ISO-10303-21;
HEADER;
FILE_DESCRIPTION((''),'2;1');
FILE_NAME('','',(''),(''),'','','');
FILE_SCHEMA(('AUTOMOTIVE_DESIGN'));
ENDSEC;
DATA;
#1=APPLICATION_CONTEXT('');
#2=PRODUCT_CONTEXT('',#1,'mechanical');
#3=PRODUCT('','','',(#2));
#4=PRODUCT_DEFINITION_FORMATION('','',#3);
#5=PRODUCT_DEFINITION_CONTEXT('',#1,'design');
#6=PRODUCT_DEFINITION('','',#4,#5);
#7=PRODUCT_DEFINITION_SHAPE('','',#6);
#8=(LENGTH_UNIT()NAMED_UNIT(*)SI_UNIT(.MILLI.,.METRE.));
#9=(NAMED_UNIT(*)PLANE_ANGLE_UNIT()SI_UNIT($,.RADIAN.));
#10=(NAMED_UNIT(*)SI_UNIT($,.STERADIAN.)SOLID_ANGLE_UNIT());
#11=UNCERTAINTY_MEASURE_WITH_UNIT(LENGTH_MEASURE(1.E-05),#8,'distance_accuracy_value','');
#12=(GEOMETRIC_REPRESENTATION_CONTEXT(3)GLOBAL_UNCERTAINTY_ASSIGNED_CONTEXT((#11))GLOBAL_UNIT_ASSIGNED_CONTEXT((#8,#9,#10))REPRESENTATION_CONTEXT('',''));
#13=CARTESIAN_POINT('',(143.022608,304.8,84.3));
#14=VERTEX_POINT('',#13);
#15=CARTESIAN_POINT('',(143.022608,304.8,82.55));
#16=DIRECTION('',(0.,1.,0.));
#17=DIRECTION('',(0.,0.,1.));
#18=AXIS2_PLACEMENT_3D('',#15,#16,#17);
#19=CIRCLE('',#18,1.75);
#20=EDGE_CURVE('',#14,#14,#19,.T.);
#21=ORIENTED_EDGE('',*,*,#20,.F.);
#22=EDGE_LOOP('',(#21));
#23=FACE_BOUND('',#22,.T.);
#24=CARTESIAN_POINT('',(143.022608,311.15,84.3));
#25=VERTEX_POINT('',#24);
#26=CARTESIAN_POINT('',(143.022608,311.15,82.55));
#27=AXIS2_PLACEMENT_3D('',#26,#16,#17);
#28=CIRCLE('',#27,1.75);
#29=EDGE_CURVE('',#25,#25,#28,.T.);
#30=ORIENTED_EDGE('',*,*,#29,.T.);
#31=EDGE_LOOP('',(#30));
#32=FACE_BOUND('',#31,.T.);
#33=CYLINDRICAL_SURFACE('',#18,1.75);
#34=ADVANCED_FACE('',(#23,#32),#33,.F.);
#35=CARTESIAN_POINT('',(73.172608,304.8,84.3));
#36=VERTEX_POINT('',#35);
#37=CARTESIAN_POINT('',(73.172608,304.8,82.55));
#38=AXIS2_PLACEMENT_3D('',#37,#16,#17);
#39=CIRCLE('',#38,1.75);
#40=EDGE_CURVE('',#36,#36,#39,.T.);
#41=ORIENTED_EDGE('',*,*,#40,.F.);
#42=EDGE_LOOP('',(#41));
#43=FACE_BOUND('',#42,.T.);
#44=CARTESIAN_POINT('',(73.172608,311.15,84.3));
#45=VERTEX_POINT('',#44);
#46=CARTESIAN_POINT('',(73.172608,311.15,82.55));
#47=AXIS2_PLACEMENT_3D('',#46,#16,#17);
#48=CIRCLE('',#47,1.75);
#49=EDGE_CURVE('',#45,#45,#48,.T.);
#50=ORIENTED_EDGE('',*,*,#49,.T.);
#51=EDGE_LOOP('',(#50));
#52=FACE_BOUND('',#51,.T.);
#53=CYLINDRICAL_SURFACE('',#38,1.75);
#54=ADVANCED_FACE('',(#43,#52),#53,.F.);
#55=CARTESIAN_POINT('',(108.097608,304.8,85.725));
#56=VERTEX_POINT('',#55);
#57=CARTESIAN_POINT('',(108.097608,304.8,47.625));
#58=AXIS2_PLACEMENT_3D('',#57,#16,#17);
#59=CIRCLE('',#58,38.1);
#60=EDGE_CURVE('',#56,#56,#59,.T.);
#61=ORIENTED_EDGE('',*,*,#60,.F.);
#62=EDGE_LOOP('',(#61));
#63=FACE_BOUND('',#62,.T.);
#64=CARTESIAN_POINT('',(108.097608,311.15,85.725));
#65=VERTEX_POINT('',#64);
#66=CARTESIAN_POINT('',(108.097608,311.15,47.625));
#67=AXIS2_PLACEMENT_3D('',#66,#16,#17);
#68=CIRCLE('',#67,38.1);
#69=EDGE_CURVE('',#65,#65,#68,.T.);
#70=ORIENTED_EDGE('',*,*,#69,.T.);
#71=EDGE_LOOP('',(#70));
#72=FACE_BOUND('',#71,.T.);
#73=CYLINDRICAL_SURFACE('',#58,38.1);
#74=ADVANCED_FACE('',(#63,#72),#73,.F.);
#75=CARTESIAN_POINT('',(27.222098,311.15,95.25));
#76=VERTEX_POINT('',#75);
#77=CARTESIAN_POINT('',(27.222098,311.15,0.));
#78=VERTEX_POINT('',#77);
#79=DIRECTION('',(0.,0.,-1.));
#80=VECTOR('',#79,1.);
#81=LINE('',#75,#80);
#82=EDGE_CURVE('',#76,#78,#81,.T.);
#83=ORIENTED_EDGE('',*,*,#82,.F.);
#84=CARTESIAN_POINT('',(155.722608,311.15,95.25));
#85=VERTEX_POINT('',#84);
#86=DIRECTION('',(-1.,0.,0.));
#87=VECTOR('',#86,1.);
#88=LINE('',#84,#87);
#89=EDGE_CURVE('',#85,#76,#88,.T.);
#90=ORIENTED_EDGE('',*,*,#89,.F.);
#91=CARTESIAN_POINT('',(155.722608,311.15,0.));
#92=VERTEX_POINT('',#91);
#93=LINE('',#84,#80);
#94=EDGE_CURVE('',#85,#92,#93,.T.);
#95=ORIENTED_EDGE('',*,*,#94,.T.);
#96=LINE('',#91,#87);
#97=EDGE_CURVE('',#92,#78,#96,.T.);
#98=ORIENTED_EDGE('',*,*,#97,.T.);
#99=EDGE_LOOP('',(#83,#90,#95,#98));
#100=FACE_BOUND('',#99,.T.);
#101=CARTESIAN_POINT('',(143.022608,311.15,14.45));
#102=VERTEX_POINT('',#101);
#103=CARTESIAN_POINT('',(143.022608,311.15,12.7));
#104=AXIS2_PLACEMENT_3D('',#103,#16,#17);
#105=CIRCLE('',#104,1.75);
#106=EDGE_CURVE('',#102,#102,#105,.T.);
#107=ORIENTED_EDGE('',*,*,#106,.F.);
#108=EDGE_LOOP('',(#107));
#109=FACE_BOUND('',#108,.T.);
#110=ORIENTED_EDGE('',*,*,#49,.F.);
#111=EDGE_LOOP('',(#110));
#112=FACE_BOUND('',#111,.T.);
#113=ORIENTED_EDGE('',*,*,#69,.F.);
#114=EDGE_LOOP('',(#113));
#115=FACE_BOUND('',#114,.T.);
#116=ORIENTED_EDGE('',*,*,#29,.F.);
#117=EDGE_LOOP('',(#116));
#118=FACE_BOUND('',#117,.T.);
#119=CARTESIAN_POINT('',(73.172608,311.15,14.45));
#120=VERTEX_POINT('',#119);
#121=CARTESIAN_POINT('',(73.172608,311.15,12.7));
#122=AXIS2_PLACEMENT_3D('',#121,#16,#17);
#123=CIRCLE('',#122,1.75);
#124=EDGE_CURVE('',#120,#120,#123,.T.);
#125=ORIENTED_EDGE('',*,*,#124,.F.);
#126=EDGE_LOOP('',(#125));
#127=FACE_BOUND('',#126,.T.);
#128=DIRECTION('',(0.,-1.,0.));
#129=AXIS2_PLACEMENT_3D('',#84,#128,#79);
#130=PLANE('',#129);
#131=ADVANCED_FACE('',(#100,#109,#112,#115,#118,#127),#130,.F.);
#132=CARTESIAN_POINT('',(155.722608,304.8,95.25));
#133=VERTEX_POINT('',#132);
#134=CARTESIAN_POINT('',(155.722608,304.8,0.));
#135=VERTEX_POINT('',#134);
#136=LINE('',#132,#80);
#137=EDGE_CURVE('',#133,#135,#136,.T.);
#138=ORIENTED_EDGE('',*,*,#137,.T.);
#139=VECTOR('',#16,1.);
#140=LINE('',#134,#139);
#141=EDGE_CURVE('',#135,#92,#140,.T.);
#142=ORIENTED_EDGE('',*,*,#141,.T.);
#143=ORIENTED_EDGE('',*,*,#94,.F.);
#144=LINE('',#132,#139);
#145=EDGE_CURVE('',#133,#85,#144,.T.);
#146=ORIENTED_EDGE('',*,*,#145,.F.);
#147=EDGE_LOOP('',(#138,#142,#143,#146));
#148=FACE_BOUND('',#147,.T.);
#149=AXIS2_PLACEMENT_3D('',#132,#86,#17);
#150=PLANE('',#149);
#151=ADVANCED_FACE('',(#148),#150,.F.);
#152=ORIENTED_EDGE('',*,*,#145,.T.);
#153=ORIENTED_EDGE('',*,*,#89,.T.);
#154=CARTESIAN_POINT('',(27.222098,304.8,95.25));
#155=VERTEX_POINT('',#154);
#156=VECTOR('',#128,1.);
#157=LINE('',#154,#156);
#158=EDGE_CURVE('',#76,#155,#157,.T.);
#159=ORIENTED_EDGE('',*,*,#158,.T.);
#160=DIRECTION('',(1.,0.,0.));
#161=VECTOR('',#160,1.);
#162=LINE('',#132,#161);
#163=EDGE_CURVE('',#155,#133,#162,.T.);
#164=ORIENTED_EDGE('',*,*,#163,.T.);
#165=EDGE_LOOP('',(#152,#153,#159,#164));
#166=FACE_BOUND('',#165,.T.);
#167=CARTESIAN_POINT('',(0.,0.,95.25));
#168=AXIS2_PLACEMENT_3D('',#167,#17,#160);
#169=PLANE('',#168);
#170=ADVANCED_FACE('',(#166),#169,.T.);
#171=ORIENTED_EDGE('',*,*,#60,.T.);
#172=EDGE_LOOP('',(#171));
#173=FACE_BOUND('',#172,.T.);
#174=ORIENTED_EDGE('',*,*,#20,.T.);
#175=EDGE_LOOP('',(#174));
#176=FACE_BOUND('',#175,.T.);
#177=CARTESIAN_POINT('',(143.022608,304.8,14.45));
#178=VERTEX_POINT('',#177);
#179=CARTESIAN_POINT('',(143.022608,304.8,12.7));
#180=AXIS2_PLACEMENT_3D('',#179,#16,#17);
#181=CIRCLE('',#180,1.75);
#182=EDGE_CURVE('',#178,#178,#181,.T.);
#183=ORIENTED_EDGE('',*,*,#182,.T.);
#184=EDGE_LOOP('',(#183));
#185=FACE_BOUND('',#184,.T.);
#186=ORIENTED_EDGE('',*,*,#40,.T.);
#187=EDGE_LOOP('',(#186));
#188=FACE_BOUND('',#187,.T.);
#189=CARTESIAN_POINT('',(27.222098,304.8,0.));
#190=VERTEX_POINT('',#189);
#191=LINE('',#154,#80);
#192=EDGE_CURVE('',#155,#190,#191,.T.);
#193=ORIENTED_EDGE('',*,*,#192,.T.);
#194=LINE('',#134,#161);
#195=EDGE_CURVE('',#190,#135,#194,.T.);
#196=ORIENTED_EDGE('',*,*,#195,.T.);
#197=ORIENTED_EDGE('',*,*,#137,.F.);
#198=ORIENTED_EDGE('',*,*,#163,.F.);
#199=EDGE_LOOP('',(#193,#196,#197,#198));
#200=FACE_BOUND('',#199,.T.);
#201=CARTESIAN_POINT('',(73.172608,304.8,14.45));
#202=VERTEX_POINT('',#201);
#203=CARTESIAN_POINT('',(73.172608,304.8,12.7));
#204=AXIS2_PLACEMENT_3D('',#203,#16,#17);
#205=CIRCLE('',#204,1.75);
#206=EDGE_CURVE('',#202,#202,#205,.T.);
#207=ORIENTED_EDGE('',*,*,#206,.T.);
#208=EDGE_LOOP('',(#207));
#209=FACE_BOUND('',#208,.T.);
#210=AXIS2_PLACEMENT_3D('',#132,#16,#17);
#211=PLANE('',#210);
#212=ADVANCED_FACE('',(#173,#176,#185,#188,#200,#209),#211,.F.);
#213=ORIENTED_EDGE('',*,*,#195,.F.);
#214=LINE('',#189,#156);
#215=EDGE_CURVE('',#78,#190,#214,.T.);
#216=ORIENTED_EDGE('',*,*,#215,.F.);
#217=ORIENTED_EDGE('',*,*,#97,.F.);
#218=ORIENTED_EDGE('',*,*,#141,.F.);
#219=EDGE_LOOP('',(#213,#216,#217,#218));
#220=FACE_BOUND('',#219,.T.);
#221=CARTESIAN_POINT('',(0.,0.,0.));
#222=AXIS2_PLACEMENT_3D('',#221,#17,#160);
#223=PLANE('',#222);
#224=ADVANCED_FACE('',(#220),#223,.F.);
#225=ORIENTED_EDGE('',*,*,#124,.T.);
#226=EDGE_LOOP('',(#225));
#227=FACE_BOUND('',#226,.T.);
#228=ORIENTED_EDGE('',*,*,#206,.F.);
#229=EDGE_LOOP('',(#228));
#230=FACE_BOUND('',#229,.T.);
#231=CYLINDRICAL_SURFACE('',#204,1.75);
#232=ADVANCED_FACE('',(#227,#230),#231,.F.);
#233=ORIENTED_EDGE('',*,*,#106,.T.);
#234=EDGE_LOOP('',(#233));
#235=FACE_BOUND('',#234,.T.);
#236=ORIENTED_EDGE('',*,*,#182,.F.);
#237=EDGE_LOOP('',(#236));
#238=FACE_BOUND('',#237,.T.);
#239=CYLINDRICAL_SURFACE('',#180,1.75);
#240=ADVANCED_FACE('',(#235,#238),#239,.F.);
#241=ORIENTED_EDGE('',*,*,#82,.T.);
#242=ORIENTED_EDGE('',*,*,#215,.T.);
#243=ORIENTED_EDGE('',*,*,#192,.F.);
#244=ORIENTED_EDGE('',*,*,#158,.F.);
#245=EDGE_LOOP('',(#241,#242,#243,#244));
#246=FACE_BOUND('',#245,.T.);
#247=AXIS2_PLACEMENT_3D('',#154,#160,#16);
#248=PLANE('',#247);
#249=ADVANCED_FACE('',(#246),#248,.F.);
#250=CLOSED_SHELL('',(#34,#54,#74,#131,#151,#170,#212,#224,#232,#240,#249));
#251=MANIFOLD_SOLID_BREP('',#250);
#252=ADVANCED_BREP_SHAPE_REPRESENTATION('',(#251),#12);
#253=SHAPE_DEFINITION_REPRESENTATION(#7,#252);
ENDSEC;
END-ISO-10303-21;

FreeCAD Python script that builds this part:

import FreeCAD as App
import Part
import Sketcher
from FreeCAD import Vector
Q = App.Units.Quantity


def add_polygon(sketch, points):
    """Adds a closed chain of lines whose ends are joined by coincident constraints."""
    first, n = sketch.GeometryCount, len(points)
    for a, b in zip(points, points[1:] + points[:1]):
        sketch.addGeometry(Part.LineSegment(App.Vector(*a, 0), App.Vector(*b, 0)), False)
    for i in range(n):
        sketch.addConstraint(Sketcher.Constraint("Coincident", first + i, 2, first + (i + 1) % n, 1))

doc = App.newDocument("Part")
body = doc.addObject("PartDesign::Body", "Body")

sketch1 = body.newObject("Sketcher::SketchObject", "Sketch")
sketch1.AttachmentSupport = (doc.getObject("XY_Plane"), [""])
sketch1.MapMode = "FlatFace"
add_polygon(sketch1, [(27, 311), (27, 305), (156, 305), (156, 311)])
sketch1.addConstraint(Sketcher.Constraint("Vertical", 0))
sketch1.addConstraint(Sketcher.Constraint("Horizontal", 1))
sketch1.addConstraint(Sketcher.Constraint("Vertical", 2))
sketch1.addConstraint(Sketcher.Constraint("Horizontal", 3))
sketch1.addConstraint(Sketcher.Constraint("DistanceY", -1, 1, 0, 2, Q("12 in")))
sketch1.addConstraint(Sketcher.Constraint("DistanceY", 0, 2, 0, 1, Q("0.25 in")))
sketch1.addConstraint(Sketcher.Constraint("DistanceX", 1, 1, 1, 2, Q("128.50051 mm")))
sketch1.addConstraint(Sketcher.Constraint("DistanceX", -1, 1, 0, 2, Q("27.222098 mm")))
pad1 = body.newObject("PartDesign::Pad", "Pad")
pad1.Profile = sketch1
pad1.Length = Q("3.75 in")

sketch2 = body.newObject("Sketcher::SketchObject", "Sketch001")
sketch2.AttachmentSupport = (doc.getObject("XZ_Plane"), [""])
sketch2.MapMode = "FlatFace"
sketch2.AttachmentOffset = App.Placement(Vector(0, 0, -12.25 * 25.4), App.Rotation())
sketch2.addGeometry(Part.Circle(Vector(108.1, 47.6, 0), Vector(0, 0, 1), 38.1), False)
sketch2.addGeometry(Part.Circle(Vector(73.2, 12.7, 0), Vector(0, 0, 1), 1.8), False)
sketch2.addGeometry(Part.Circle(Vector(73.2, 82.5, 0), Vector(0, 0, 1), 1.8), False)
sketch2.addGeometry(Part.Circle(Vector(143, 82.5, 0), Vector(0, 0, 1), 1.8), False)
sketch2.addGeometry(Part.Circle(Vector(143, 12.7, 0), Vector(0, 0, 1), 1.8), False)
sketch2.addConstraint(Sketcher.Constraint("Equal", 1, 2))
sketch2.addConstraint(Sketcher.Constraint("Equal", 2, 3))
sketch2.addConstraint(Sketcher.Constraint("Equal", 3, 4))
sketch2.addConstraint(Sketcher.Constraint("Horizontal", 2, 3, 3, 3))
sketch2.addConstraint(Sketcher.Constraint("Horizontal", 1, 3, 4, 3))
sketch2.addConstraint(Sketcher.Constraint("Vertical", 1, 3, 2, 3))
sketch2.addConstraint(Sketcher.Constraint("Vertical", 3, 3, 4, 3))
sketch2.addConstraint(Sketcher.Constraint("Diameter", 0, Q("3 in")))
sketch2.addConstraint(Sketcher.Constraint("DistanceY", -1, 1, 1, 3, Q("0.5 in")))
sketch2.addConstraint(Sketcher.Constraint("Diameter", 1, Q("3.5 mm")))
sketch2.addConstraint(Sketcher.Constraint("DistanceY", -1, 1, 2, 3, Q("3.25 in")))
sketch2.addConstraint(Sketcher.Constraint("DistanceX", 2, 3, 3, 3, Q("2.75 in")))
sketch2.addConstraint(Sketcher.Constraint("DistanceY", -1, 1, 0, 3, Q("1.875 in")))
sketch2.addConstraint(Sketcher.Constraint("DistanceX", 1, 3, 0, 3, Q("1.375 in")))
sketch2.addConstraint(Sketcher.Constraint("DistanceX", -1, 1, 0, 3, Q("108.097608 mm")))
pocket1 = body.newObject("PartDesign::Pocket", "Pocket")
pocket1.Profile = sketch2
pocket1.Type = "ThroughAll"
pocket1.Reversed = True

doc.recompute()
